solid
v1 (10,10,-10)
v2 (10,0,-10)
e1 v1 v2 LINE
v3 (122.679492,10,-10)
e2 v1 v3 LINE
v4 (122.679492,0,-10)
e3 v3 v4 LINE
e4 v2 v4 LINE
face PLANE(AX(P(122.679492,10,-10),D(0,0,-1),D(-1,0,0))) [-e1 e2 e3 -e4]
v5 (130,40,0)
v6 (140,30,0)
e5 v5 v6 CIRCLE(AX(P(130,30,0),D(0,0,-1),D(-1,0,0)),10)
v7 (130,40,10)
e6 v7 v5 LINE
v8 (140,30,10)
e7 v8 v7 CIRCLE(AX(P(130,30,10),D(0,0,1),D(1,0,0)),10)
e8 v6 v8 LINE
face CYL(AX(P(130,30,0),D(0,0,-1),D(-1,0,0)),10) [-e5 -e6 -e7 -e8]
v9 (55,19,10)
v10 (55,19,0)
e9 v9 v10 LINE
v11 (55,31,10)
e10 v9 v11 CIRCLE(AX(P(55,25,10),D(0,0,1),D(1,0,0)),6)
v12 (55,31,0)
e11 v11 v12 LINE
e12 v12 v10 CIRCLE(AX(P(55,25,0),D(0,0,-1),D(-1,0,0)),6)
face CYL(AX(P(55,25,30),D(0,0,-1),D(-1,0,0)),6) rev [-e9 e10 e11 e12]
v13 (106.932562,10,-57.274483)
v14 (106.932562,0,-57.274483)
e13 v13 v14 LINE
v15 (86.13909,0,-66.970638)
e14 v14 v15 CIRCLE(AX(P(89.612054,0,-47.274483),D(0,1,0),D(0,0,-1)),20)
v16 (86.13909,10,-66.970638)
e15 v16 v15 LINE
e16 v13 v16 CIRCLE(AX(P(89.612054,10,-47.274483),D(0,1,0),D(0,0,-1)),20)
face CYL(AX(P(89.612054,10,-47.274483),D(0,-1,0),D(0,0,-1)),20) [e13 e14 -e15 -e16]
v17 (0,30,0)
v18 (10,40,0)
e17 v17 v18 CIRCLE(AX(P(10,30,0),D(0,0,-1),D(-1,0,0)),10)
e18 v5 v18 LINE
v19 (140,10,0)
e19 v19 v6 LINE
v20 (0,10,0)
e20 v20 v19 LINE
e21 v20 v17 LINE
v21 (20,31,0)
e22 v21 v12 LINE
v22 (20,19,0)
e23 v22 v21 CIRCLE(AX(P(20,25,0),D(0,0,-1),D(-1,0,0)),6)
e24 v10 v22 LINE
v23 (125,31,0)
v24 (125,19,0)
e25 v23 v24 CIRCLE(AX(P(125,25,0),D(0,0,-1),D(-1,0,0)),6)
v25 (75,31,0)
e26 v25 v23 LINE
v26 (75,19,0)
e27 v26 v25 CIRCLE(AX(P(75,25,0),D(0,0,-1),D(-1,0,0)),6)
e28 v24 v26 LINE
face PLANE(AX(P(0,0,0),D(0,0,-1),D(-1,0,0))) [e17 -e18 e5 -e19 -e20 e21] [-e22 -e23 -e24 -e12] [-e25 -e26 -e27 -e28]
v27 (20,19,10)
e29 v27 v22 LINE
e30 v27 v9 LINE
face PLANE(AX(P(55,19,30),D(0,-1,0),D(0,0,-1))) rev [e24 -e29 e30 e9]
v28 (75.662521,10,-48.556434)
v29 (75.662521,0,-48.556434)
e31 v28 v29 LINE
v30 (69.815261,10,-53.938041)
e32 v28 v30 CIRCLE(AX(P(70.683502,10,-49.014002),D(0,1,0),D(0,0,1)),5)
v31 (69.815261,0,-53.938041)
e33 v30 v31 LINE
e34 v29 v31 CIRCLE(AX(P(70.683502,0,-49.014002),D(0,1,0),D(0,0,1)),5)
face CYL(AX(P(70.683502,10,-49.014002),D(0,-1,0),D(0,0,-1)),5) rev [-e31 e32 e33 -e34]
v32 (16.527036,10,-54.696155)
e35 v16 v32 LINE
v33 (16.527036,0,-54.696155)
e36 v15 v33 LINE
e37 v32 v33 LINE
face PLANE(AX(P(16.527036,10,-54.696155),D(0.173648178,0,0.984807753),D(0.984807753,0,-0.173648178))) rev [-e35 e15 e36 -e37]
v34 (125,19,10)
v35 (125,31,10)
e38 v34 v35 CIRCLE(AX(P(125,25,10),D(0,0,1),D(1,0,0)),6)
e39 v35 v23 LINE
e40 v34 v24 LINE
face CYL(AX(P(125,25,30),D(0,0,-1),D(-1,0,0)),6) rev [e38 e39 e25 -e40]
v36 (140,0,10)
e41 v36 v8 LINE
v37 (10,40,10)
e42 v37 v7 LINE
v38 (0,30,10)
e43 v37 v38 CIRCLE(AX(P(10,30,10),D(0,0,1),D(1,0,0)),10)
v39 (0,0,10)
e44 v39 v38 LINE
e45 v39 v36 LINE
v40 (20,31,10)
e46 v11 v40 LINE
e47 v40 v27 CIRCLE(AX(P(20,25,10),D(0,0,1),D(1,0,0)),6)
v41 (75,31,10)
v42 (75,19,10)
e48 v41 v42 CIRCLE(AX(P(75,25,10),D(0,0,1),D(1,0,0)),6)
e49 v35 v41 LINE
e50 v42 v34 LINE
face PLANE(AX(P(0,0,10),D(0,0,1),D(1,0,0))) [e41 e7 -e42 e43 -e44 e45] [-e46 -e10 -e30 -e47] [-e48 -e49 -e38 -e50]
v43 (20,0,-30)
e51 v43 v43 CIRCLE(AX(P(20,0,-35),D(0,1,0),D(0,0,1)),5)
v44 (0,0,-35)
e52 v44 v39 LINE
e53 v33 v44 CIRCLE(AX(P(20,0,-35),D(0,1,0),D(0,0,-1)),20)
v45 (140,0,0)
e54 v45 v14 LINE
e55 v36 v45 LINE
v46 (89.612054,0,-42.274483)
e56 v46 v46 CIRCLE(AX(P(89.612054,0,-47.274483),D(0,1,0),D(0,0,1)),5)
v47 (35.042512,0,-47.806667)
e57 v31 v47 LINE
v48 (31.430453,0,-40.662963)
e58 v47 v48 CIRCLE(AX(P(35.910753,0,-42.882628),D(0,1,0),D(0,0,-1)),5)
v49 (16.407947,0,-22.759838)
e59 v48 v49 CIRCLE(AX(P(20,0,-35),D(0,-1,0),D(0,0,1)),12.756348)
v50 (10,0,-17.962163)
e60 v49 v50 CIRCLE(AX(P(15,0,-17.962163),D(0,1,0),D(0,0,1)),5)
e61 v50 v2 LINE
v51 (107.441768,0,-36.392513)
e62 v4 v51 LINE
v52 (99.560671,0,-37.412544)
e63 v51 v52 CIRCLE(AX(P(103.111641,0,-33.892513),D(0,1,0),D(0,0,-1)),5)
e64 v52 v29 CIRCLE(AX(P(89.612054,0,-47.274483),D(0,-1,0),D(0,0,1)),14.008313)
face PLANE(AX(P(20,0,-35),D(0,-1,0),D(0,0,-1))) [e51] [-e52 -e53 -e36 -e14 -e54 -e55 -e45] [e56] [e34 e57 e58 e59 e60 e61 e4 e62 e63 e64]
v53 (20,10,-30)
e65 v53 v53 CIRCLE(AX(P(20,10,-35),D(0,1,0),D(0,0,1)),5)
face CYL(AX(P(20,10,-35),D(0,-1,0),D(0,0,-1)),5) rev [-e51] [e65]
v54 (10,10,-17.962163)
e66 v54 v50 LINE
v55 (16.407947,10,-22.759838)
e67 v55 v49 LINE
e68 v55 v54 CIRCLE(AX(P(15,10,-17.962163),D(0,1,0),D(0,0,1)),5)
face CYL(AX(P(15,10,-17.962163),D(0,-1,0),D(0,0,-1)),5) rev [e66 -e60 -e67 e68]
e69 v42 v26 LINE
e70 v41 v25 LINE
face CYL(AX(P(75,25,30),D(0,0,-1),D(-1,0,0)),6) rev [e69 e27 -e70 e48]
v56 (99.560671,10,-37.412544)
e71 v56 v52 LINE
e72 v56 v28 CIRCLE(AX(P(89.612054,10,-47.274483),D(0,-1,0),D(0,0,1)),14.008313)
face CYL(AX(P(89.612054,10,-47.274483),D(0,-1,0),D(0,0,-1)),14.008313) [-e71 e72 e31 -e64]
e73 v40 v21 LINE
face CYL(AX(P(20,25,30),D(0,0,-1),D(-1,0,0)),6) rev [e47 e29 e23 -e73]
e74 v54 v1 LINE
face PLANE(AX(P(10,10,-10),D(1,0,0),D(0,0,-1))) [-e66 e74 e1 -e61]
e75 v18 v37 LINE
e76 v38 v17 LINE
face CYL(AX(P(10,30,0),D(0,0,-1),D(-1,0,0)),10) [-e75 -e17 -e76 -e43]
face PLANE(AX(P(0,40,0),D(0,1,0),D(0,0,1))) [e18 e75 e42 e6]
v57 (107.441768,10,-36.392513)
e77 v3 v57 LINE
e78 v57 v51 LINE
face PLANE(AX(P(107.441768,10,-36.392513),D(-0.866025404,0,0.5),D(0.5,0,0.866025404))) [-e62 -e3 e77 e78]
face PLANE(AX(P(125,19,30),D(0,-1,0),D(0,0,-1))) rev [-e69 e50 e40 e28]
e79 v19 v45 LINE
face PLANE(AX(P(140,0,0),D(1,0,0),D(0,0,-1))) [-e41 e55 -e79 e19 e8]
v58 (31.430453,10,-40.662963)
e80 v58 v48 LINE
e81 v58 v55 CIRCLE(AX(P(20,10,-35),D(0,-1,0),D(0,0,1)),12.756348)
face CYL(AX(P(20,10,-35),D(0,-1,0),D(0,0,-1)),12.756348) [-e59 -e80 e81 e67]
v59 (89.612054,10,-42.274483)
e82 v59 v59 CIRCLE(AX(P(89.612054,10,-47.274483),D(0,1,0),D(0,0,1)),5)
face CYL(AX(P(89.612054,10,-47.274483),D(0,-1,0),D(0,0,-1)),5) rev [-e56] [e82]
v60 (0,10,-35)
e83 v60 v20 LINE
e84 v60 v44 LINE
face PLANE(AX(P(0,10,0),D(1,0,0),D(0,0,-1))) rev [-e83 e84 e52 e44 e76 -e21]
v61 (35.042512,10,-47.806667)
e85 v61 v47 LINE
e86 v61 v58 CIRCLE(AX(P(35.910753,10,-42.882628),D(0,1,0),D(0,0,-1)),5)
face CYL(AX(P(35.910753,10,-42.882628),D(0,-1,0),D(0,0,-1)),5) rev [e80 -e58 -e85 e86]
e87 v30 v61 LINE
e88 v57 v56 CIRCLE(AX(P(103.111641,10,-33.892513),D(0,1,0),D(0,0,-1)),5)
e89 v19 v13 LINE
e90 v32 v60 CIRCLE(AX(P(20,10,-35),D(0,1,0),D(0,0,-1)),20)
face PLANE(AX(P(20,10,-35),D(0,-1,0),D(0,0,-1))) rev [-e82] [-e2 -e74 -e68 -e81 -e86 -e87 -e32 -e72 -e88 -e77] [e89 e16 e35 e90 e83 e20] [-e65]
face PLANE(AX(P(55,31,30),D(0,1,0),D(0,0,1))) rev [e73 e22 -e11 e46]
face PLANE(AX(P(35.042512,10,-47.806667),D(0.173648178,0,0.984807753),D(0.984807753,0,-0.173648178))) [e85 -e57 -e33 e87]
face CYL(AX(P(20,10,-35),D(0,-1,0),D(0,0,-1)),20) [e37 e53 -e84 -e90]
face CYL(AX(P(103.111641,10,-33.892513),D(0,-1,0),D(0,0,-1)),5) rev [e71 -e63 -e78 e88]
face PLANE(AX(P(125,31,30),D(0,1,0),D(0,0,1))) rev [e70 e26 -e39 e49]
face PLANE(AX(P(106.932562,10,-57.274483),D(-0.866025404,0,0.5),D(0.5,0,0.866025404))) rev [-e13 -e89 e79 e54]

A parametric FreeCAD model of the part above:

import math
import FreeCAD as App
import Part
import Sketcher
Q = App.Units.Quantity


def edges_at(feature, points):
    """Names of the edges that pass closest to the given points."""
    edges = feature.Shape.Edges
    near = lambda p: min(range(len(edges)), key=lambda i: edges[i].distToShape(Part.Vertex(*p))[0])
    return sorted({f"Edge{near(p) + 1}" for p in points})

doc = App.newDocument("Part")
body = doc.addObject("PartDesign::Body", "Body")

# Sketch on XZ plane
sketch1 = body.newObject("Sketcher::SketchObject", "Sketch")
sketch1.AttachmentSupport = (doc.getObject("XZ_Plane"), [""])
sketch1.MapMode = "FlatFace"
sketch1.addGeometry(Part.LineSegment(App.Vector(0, -35, 0), App.Vector(0, 0, 0)), False)
sketch1.addGeometry(Part.LineSegment(App.Vector(0, 0, 0), App.Vector(140, 0, 0)), False)
sketch1.addGeometry(Part.LineSegment(App.Vector(140, 0, 0), App.Vector(106.932562, -57.274483, 0)), False)
sketch1.addGeometry(Part.ArcOfCircle(Part.Circle(App.Vector(89.612054, -47.274483, 0), App.Vector(0, 0, 1), 20), math.radians(-100), math.radians(-30)), False)
sketch1.addGeometry(Part.LineSegment(App.Vector(86.13909, -66.970638, 0), App.Vector(16.527036, -54.696155, 0)), False)
sketch1.addGeometry(Part.ArcOfCircle(Part.Circle(App.Vector(20, -35, 0), App.Vector(0, 0, 1), 20), math.radians(180), math.radians(260)), False)
sketch1.addGeometry(Part.LineSegment(App.Vector(122.679492, -10, 0), App.Vector(10, -10, 0)), False)
sketch1.addGeometry(Part.LineSegment(App.Vector(10, -10, 0), App.Vector(10, -17.962163, 0)), False)
sketch1.addGeometry(Part.ArcOfCircle(Part.Circle(App.Vector(15, -17.962163, 0), App.Vector(0, 0, 1), 5), math.radians(180), math.radians(286.35509)), False)
sketch1.addGeometry(Part.ArcOfCircle(Part.Circle(App.Vector(20, -35, 0), App.Vector(0, 0, 1), 12.756348), math.radians(-26.35509), math.radians(106.35509)), False)
sketch1.addGeometry(Part.ArcOfCircle(Part.Circle(App.Vector(35.910753, -42.882628, 0), App.Vector(0, 0, 1), 5), math.radians(153.64491), math.radians(260)), False)
sketch1.addGeometry(Part.LineSegment(App.Vector(35.042512, -47.806667, 0), App.Vector(69.815261, -53.938041, 0)), False)
sketch1.addGeometry(Part.ArcOfCircle(Part.Circle(App.Vector(70.683502, -49.014002, 0), App.Vector(0, 0, 1), 5), math.radians(-100), math.radians(5.250688)), False)
sketch1.addGeometry(Part.ArcOfCircle(Part.Circle(App.Vector(89.612054, -47.274483, 0), App.Vector(0, 0, 1), 14.008313), math.radians(44.749312), math.radians(185.250688)), False)
sketch1.addGeometry(Part.ArcOfCircle(Part.Circle(App.Vector(103.111641, -33.892513, 0), App.Vector(0, 0, 1), 5), math.radians(-135.250688), math.radians(-30)), False)
sketch1.addGeometry(Part.LineSegment(App.Vector(107.441768, -36.392513, 0), App.Vector(122.679492, -10, 0)), False)
sketch1.addGeometry(Part.Circle(App.Vector(89.612054, -47.274483, 0), App.Vector(0, 0, 1), 5), False)
sketch1.addGeometry(Part.Circle(App.Vector(20, -35, 0), App.Vector(0, 0, 1), 5), False)
sketch1.addConstraint(Sketcher.Constraint("Coincident", 0, 2, 1, 1))
sketch1.addConstraint(Sketcher.Constraint("Coincident", 1, 2, 2, 1))
sketch1.addConstraint(Sketcher.Constraint("Tangent", 2, 2, 3, 2))
sketch1.addConstraint(Sketcher.Constraint("Tangent", 3, 1, 4, 1))
sketch1.addConstraint(Sketcher.Constraint("Tangent", 4, 2, 5, 2))
sketch1.addConstraint(Sketcher.Constraint("Tangent", 5, 1, 0, 1))
sketch1.addConstraint(Sketcher.Constraint("Coincident", 6, 2, 7, 1))
sketch1.addConstraint(Sketcher.Constraint("Tangent", 7, 2, 8, 1))
sketch1.addConstraint(Sketcher.Constraint("Tangent", 8, 2, 9, 2))
sketch1.addConstraint(Sketcher.Constraint("Tangent", 9, 1, 10, 1))
sketch1.addConstraint(Sketcher.Constraint("Tangent", 10, 2, 11, 1))
sketch1.addConstraint(Sketcher.Constraint("Tangent", 11, 2, 12, 1))
sketch1.addConstraint(Sketcher.Constraint("Tangent", 12, 2, 13, 2))
sketch1.addConstraint(Sketcher.Constraint("Tangent", 13, 1, 14, 1))
sketch1.addConstraint(Sketcher.Constraint("Tangent", 14, 2, 15, 1))
sketch1.addConstraint(Sketcher.Constraint("Coincident", 15, 2, 6, 1))
sketch1.addConstraint(Sketcher.Constraint("Vertical", 0))
sketch1.addConstraint(Sketcher.Constraint("Horizontal", 1))
sketch1.addConstraint(Sketcher.Constraint("Horizontal", 6))
sketch1.addConstraint(Sketcher.Constraint("Vertical", 7))
sketch1.addConstraint(Sketcher.Constraint("Coincident", 0, 2, -1, 1))
sketch1.addConstraint(Sketcher.Constraint("Coincident", 9, 3, 5, 3))
sketch1.addConstraint(Sketcher.Constraint("Coincident", 13, 3, 3, 3))
sketch1.addConstraint(Sketcher.Constraint("Coincident", 16, 3, 3, 3))
sketch1.addConstraint(Sketcher.Constraint("Coincident", 17, 3, 5, 3))
sketch1.addConstraint(Sketcher.Constraint("Equal", 3, 5))
sketch1.addConstraint(Sketcher.Constraint("Equal", 8, 10))
sketch1.addConstraint(Sketcher.Constraint("Equal", 10, 12))
sketch1.addConstraint(Sketcher.Constraint("Equal", 12, 14))
sketch1.addConstraint(Sketcher.Constraint("Equal", 14, 16))
sketch1.addConstraint(Sketcher.Constraint("Equal", 16, 17))
sketch1.addConstraint(Sketcher.Constraint("Parallel", 4, 11))
sketch1.addConstraint(Sketcher.Constraint("Parallel", 2, 15))
sketch1.addConstraint(Sketcher.Constraint("Diameter", 16, 10.0))
sketch1.addConstraint(Sketcher.Constraint("Radius", 3, 20.0))
sketch1.addConstraint(Sketcher.Constraint("DistanceX", 1, 1, 1, 2, 140.0))
sketch1.addConstraint(Sketcher.Constraint("DistanceY", 0, 1, 0, 2, 35.0))
sketch1.addConstraint(Sketcher.Constraint("Angle", 2, Q("-120 deg")))
sketch1.addConstraint(Sketcher.Constraint("Angle", 4, Q("170 deg")))
sketch1.addConstraint(Sketcher.Constraint("DistanceX", -1, 1, 8, 3, 15.0))
sketch1.addConstraint(Sketcher.Constraint("DistanceY", 6, 2, -1, 1, 10.0))
sketch1.addConstraint(Sketcher.Constraint("Radius", 9, 12.756348))
sketch1.addConstraint(Sketcher.Constraint("DistanceY", 12, 3, -1, 1, 49.014002))
sketch1.addConstraint(Sketcher.Constraint("Radius", 13, 14.008313))
sketch1.addConstraint(Sketcher.Constraint("DistanceX", 6, 2, 6, 1, 112.679492))
pad1 = body.newObject("PartDesign::Pad", "Pad")
pad1.Profile = sketch1
pad1.Length = 10
pad1.Reversed = True

# Sketch on XZ plane
sketch2 = body.newObject("Sketcher::SketchObject", "Sketch001")
sketch2.AttachmentSupport = (doc.getObject("XZ_Plane"), [""])
sketch2.MapMode = "FlatFace"
sketch2.AttachmentOffset = App.Placement(App.Vector(0, 0, -10), App.Rotation())
sketch2.addGeometry(Part.LineSegment(App.Vector(0, 0, 0), App.Vector(0, 10, 0)), False)
sketch2.addGeometry(Part.LineSegment(App.Vector(0, 10, 0), App.Vector(140, 10, 0)), False)
sketch2.addGeometry(Part.LineSegment(App.Vector(140, 10, 0), App.Vector(140, 0, 0)), False)
sketch2.addGeometry(Part.LineSegment(App.Vector(140, 0, 0), App.Vector(0, 0, 0)), False)
sketch2.addConstraint(Sketcher.Constraint("Coincident", 0, 2, 1, 1))
sketch2.addConstraint(Sketcher.Constraint("Coincident", 1, 2, 2, 1))
sketch2.addConstraint(Sketcher.Constraint("Coincident", 2, 2, 3, 1))
sketch2.addConstraint(Sketcher.Constraint("Coincident", 3, 2, 0, 1))
sketch2.addConstraint(Sketcher.Constraint("Vertical", 0))
sketch2.addConstraint(Sketcher.Constraint("Horizontal", 1))
sketch2.addConstraint(Sketcher.Constraint("Vertical", 2))
sketch2.addConstraint(Sketcher.Constraint("Horizontal", 3))
sketch2.addConstraint(Sketcher.Constraint("Coincident", 3, 2, -1, 1))
sketch2.addConstraint(Sketcher.Constraint("DistanceX", 1, 1, 1, 2, 140.0))
sketch2.addConstraint(Sketcher.Constraint("DistanceY", 0, 1, 0, 2, 10.0))
pad2 = body.newObject("PartDesign::Pad", "Pad001")
pad2.Profile = sketch2
pad2.Type = "TwoLengths"
pad2.Length = 30
pad2.Length2 = 10
pad2.Reversed = True

# Sketch on XY plane
sketch3 = body.newObject("Sketcher::SketchObject", "Sketch002")
sketch3.AttachmentSupport = (doc.getObject("XY_Plane"), [""])
sketch3.MapMode = "FlatFace"
sketch3.addGeometry(Part.LineSegment(App.Vector(75, 31, 0), App.Vector(125, 31, 0)), False)
sketch3.addGeometry(Part.ArcOfCircle(Part.Circle(App.Vector(125, 25, 0), App.Vector(0, 0, 1), 6), math.radians(-90), math.radians(90)), False)
sketch3.addGeometry(Part.LineSegment(App.Vector(125, 19, 0), App.Vector(75, 19, 0)), False)
sketch3.addGeometry(Part.ArcOfCircle(Part.Circle(App.Vector(75, 25, 0), App.Vector(0, 0, 1), 6), math.radians(90), math.radians(270)), False)
sketch3.addGeometry(Part.LineSegment(App.Vector(20, 31, 0), App.Vector(55, 31, 0)), False)
sketch3.addGeometry(Part.ArcOfCircle(Part.Circle(App.Vector(55, 25, 0), App.Vector(0, 0, 1), 6), math.radians(-90), math.radians(90)), False)
sketch3.addGeometry(Part.LineSegment(App.Vector(55, 19, 0), App.Vector(20, 19, 0)), False)
sketch3.addGeometry(Part.ArcOfCircle(Part.Circle(App.Vector(20, 25, 0), App.Vector(0, 0, 1), 6), math.radians(90), math.radians(270)), False)
sketch3.addConstraint(Sketcher.Constraint("Tangent", 0, 2, 1, 2))
sketch3.addConstraint(Sketcher.Constraint("Tangent", 1, 1, 2, 1))
sketch3.addConstraint(Sketcher.Constraint("Tangent", 2, 2, 3, 2))
sketch3.addConstraint(Sketcher.Constraint("Tangent", 3, 1, 0, 1))
sketch3.addConstraint(Sketcher.Constraint("Tangent", 4, 2, 5, 2))
sketch3.addConstraint(Sketcher.Constraint("Tangent", 5, 1, 6, 1))
sketch3.addConstraint(Sketcher.Constraint("Tangent", 6, 2, 7, 2))
sketch3.addConstraint(Sketcher.Constraint("Tangent", 7, 1, 4, 1))
sketch3.addConstraint(Sketcher.Constraint("Horizontal", 0))
sketch3.addConstraint(Sketcher.Constraint("Horizontal", 2))
sketch3.addConstraint(Sketcher.Constraint("Horizontal", 4))
sketch3.addConstraint(Sketcher.Constraint("Horizontal", 6))
sketch3.addConstraint(Sketcher.Constraint("Equal", 3, 5))
sketch3.addConstraint(Sketcher.Constraint("Horizontal", 3, 3, 5, 3))
sketch3.addConstraint(Sketcher.Constraint("Radius", 1, 6.0))
sketch3.addConstraint(Sketcher.Constraint("DistanceX", 0, 1, 0, 2, 50.0))
sketch3.addConstraint(Sketcher.Constraint("DistanceX", 4, 1, 4, 2, 35.0))
sketch3.addConstraint(Sketcher.Constraint("DistanceX", -1, 1, 1, 3, 125.0))
sketch3.addConstraint(Sketcher.Constraint("DistanceY", -1, 1, 1, 3, 25.0))
sketch3.addConstraint(Sketcher.Constraint("DistanceX", -1, 1, 5, 3, 55.0))
pocket1 = body.newObject("PartDesign::Pocket", "Pocket")
pocket1.Profile = sketch3
pocket1.Length = 30
pocket1.Reversed = True
doc.recompute()

fillet = body.newObject("PartDesign::Fillet", "Fillet")
fillet.Base = (pocket1, edges_at(pocket1, [(0, 40, 5), (140, 40, 5)]))
fillet.Radius = 10

doc.recompute()
